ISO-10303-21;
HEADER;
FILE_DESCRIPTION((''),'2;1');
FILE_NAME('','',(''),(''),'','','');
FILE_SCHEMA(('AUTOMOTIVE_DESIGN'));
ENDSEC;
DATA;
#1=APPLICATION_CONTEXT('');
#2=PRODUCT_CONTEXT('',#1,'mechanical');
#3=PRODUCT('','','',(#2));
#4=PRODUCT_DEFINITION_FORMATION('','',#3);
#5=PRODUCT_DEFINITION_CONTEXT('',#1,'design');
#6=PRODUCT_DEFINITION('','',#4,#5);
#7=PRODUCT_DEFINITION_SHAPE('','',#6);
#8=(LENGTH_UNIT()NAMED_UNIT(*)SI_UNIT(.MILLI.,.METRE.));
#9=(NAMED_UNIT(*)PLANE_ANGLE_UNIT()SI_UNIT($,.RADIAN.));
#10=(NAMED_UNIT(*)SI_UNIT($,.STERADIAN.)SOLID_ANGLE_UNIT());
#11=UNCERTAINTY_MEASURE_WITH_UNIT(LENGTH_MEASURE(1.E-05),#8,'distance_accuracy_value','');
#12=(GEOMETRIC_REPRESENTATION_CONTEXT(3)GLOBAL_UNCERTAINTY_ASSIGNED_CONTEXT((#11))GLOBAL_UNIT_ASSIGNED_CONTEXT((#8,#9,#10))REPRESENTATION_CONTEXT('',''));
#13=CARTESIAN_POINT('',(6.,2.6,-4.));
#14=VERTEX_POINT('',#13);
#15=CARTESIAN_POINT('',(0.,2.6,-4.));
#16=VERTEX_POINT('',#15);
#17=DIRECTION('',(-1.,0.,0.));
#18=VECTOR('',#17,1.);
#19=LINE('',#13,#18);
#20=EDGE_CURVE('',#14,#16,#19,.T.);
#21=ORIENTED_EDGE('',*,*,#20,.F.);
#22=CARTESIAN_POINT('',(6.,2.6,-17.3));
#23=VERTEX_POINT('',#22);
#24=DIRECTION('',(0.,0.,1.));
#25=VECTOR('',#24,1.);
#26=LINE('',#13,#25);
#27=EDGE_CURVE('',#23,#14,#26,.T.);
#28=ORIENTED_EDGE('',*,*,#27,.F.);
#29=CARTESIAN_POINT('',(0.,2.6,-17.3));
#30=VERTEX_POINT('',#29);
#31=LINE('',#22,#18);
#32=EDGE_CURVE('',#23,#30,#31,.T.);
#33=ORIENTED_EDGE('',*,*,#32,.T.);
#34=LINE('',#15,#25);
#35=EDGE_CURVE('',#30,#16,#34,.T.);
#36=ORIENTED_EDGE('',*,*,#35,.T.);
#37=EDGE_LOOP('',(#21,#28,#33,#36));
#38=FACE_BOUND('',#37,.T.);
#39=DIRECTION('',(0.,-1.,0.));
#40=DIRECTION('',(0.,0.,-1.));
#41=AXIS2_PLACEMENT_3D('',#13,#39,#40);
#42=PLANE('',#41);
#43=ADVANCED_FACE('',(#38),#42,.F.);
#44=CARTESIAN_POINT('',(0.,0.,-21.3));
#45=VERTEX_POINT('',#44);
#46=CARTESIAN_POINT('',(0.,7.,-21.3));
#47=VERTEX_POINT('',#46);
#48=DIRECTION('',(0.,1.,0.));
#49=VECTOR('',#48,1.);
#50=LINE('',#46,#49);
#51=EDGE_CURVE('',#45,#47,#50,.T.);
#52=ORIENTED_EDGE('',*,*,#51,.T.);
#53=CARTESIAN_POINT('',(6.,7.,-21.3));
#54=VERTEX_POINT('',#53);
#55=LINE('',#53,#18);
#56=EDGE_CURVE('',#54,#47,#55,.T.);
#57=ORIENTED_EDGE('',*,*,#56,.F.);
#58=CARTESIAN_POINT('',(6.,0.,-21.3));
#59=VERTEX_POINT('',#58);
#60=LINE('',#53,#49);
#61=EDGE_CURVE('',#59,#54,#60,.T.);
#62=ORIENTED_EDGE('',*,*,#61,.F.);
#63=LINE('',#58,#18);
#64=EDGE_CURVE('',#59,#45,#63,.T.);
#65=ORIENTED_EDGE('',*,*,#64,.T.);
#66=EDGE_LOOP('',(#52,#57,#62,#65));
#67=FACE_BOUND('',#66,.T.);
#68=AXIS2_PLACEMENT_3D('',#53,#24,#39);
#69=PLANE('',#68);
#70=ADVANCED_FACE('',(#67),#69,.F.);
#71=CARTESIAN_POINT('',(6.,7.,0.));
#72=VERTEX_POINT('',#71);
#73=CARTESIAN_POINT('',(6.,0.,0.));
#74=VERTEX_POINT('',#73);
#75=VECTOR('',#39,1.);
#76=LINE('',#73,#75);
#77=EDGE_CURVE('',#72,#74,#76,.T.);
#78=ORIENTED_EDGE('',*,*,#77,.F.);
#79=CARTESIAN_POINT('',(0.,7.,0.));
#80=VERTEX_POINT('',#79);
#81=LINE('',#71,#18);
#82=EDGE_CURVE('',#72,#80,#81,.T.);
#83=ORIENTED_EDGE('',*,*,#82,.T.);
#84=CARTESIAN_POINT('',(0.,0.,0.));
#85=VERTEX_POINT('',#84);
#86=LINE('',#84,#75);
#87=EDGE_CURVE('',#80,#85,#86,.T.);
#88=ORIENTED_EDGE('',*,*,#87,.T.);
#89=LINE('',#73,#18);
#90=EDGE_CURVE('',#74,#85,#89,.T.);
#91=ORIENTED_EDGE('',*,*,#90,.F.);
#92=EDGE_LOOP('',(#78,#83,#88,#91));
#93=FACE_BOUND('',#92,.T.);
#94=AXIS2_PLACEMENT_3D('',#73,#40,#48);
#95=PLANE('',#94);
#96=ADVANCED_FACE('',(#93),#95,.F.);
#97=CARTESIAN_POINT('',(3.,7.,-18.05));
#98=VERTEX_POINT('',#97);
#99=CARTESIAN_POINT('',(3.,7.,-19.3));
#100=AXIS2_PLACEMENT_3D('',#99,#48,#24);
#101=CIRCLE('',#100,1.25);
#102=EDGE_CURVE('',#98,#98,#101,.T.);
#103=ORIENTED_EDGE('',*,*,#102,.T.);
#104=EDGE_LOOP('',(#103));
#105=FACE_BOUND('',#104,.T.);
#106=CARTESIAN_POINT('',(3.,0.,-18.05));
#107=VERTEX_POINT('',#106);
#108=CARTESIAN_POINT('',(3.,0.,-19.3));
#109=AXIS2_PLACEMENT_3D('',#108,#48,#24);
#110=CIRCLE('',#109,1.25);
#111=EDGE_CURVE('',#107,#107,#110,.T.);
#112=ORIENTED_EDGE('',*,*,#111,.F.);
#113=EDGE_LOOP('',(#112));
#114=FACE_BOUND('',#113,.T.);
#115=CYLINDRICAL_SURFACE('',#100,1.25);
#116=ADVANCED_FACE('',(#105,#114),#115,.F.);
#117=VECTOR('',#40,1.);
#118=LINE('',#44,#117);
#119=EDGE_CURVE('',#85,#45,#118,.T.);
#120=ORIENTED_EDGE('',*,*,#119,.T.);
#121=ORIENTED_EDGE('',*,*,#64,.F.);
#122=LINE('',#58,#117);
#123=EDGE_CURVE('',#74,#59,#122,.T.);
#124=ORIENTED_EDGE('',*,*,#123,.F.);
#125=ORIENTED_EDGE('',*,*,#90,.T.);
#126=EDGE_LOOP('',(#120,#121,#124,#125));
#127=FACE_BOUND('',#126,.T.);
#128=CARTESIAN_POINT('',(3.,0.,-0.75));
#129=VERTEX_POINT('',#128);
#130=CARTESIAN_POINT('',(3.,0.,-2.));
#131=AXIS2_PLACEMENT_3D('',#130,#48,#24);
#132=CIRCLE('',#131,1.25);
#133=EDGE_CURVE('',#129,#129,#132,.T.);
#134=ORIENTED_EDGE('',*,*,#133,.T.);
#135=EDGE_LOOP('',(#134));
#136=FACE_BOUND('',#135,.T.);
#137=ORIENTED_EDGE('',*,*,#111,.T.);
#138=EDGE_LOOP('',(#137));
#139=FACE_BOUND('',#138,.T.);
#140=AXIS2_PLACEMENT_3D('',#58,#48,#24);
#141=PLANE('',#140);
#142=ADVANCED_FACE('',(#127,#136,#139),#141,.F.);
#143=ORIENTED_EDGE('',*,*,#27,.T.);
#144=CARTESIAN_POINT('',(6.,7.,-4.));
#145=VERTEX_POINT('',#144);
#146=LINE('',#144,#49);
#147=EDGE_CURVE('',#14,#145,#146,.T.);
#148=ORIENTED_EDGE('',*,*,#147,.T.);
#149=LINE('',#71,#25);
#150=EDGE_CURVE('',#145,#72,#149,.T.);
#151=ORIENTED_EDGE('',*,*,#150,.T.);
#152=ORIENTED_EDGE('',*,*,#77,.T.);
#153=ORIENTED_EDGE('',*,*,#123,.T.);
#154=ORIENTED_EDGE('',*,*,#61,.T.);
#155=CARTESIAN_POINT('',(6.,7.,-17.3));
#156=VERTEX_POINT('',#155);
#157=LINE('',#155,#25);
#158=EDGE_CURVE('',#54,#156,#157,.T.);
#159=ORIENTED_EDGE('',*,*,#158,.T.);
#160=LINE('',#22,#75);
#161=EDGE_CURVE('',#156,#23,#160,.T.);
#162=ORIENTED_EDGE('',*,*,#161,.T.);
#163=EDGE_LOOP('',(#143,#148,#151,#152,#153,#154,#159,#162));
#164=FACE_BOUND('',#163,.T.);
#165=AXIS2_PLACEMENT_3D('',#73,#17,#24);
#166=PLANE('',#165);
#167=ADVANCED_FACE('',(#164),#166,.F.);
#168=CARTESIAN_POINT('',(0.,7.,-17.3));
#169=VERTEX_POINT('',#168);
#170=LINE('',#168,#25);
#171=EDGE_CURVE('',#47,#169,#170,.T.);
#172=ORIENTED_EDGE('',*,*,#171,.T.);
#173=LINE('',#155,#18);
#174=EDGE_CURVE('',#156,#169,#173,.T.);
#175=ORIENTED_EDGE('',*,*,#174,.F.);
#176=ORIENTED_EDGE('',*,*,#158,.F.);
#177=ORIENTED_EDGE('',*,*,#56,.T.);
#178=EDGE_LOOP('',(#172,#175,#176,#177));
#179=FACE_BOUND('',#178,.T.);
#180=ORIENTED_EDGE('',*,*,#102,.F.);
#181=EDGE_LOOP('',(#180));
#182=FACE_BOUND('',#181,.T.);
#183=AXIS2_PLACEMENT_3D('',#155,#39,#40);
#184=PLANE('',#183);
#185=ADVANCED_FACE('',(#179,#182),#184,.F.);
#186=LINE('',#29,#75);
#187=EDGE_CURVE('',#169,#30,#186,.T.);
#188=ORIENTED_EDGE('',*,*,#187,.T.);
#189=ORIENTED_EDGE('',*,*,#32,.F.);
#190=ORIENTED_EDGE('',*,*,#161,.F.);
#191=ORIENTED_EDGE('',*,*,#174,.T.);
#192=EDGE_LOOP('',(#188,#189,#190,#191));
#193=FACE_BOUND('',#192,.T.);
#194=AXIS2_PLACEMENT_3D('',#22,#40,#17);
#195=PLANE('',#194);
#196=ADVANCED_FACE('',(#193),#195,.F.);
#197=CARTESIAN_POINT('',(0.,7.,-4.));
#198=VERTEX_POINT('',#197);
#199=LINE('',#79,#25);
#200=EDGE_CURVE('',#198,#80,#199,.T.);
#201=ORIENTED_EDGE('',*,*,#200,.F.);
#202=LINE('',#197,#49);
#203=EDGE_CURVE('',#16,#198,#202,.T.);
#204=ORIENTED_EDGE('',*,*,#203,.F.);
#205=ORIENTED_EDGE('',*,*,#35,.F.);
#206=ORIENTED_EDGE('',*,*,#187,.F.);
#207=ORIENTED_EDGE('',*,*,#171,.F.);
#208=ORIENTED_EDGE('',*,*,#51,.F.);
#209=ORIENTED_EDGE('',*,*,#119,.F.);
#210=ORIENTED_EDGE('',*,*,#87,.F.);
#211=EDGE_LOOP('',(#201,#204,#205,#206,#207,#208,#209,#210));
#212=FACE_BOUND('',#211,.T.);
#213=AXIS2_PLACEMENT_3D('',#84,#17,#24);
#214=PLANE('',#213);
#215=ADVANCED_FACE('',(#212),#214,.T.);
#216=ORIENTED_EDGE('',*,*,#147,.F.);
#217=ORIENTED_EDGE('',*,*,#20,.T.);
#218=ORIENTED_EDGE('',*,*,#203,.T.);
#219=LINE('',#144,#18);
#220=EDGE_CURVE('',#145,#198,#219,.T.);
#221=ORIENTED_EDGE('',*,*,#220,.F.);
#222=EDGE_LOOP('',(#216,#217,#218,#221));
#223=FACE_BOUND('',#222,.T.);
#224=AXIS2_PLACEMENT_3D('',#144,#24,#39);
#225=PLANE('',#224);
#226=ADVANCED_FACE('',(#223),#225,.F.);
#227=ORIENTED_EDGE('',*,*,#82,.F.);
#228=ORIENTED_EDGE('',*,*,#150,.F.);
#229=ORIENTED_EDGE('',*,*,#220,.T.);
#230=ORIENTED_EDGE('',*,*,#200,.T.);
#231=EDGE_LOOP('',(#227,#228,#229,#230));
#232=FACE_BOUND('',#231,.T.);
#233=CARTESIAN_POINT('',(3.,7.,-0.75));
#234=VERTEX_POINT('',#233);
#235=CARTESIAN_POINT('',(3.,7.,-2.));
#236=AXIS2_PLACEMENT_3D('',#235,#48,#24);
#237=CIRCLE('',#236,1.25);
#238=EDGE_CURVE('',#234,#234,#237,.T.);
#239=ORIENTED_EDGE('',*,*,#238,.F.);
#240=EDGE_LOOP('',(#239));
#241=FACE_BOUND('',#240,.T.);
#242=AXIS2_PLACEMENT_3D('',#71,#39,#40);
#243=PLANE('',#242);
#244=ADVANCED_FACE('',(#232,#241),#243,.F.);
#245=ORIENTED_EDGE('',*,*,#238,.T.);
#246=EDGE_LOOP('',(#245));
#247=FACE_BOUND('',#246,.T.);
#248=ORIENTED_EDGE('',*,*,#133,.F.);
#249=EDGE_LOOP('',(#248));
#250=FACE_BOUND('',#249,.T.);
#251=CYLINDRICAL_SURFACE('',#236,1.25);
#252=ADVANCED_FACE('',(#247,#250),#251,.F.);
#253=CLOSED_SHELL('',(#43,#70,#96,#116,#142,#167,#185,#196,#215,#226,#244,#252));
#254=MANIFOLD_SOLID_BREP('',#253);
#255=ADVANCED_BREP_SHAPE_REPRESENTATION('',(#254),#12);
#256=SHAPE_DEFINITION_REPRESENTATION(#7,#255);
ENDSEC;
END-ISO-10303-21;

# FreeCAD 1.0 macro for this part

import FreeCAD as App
import Part
import Sketcher

V = App.Vector


def add_polygon(sketch, points):
    """Adds a closed chain of lines whose ends are joined by coincident constraints."""
    first, n = sketch.GeometryCount, len(points)
    for a, b in zip(points, points[1:] + points[:1]):
        sketch.addGeometry(Part.LineSegment(App.Vector(*a, 0), App.Vector(*b, 0)), False)
    for i in range(n):
        sketch.addConstraint(Sketcher.Constraint("Coincident", first + i, 2, first + (i + 1) % n, 1))

doc = App.newDocument("Part")
body = doc.addObject("PartDesign::Body", "Body")

sketch1 = body.newObject("Sketcher::SketchObject", "Sketch")
sketch1.AttachmentSupport = (doc.getObject("YZ_Plane"), [""])
sketch1.MapMode = "FlatFace"
add_polygon(sketch1, [(7, 0), (0, 0), (0, -21.3), (7, -21.3), (7, -17.3), (2.6, -17.3), (2.6, -4), (7, -4)])
sketch1.addConstraint(Sketcher.Constraint("Horizontal", 0))
sketch1.addConstraint(Sketcher.Constraint("Vertical", 1))
sketch1.addConstraint(Sketcher.Constraint("Horizontal", 2))
sketch1.addConstraint(Sketcher.Constraint("Vertical", 3))
sketch1.addConstraint(Sketcher.Constraint("Horizontal", 4))
sketch1.addConstraint(Sketcher.Constraint("Vertical", 5))
sketch1.addConstraint(Sketcher.Constraint("Horizontal", 6))
sketch1.addConstraint(Sketcher.Constraint("Vertical", 7))
sketch1.addConstraint(Sketcher.Constraint("Coincident", 0, 2, -1, 1))
sketch1.addConstraint(Sketcher.Constraint("Vertical", 3, 2, 6, 2))
sketch1.addConstraint(Sketcher.Constraint("Equal", 3, 7))
sketch1.addConstraint(Sketcher.Constraint("DistanceX", 0, 2, 0, 1, 7.0))
sketch1.addConstraint(Sketcher.Constraint("DistanceY", 3, 1, 3, 2, 4.0))
sketch1.addConstraint(Sketcher.Constraint("DistanceX", 4, 2, 4, 1, 4.4))
sketch1.addConstraint(Sketcher.Constraint("DistanceY", 1, 2, 1, 1, 21.3))
pad1 = body.newObject("PartDesign::Pad", "Pad")
pad1.Profile = sketch1
pad1.Length = 6

sketch2 = body.newObject("Sketcher::SketchObject", "Sketch001")
sketch2.AttachmentSupport = (doc.getObject("XZ_Plane"), [""])
sketch2.MapMode = "FlatFace"
sketch2.AttachmentOffset = App.Placement(V(0, 0, -7), App.Rotation())
sketch2.addGeometry(Part.Circle(V(3, -2, 0), V(0, 0, 1), 1.2), False)
sketch2.addGeometry(Part.Circle(V(3, -19.3, 0), V(0, 0, 1), 1.2), False)
sketch2.addConstraint(Sketcher.Constraint("Equal", 0, 1))
sketch2.addConstraint(Sketcher.Constraint("Vertical", 0, 3, 1, 3))
sketch2.addConstraint(Sketcher.Constraint("Diameter", 0, 2.5))
sketch2.addConstraint(Sketcher.Constraint("DistanceX", -1, 1, 0, 3, 3.0))
sketch2.addConstraint(Sketcher.Constraint("DistanceY", 0, 3, -1, 1, 2.0))
sketch2.addConstraint(Sketcher.Constraint("DistanceY", 1, 3, -1, 1, 19.3))
doc.recompute()
hole = body.newObject("PartDesign::Hole", "Hole")
hole.Profile = sketch2
hole.ThreadType = "None"
hole.Diameter = 2.5
hole.DepthType = "ThroughAll"
hole.Reversed = True

doc.recompute()
